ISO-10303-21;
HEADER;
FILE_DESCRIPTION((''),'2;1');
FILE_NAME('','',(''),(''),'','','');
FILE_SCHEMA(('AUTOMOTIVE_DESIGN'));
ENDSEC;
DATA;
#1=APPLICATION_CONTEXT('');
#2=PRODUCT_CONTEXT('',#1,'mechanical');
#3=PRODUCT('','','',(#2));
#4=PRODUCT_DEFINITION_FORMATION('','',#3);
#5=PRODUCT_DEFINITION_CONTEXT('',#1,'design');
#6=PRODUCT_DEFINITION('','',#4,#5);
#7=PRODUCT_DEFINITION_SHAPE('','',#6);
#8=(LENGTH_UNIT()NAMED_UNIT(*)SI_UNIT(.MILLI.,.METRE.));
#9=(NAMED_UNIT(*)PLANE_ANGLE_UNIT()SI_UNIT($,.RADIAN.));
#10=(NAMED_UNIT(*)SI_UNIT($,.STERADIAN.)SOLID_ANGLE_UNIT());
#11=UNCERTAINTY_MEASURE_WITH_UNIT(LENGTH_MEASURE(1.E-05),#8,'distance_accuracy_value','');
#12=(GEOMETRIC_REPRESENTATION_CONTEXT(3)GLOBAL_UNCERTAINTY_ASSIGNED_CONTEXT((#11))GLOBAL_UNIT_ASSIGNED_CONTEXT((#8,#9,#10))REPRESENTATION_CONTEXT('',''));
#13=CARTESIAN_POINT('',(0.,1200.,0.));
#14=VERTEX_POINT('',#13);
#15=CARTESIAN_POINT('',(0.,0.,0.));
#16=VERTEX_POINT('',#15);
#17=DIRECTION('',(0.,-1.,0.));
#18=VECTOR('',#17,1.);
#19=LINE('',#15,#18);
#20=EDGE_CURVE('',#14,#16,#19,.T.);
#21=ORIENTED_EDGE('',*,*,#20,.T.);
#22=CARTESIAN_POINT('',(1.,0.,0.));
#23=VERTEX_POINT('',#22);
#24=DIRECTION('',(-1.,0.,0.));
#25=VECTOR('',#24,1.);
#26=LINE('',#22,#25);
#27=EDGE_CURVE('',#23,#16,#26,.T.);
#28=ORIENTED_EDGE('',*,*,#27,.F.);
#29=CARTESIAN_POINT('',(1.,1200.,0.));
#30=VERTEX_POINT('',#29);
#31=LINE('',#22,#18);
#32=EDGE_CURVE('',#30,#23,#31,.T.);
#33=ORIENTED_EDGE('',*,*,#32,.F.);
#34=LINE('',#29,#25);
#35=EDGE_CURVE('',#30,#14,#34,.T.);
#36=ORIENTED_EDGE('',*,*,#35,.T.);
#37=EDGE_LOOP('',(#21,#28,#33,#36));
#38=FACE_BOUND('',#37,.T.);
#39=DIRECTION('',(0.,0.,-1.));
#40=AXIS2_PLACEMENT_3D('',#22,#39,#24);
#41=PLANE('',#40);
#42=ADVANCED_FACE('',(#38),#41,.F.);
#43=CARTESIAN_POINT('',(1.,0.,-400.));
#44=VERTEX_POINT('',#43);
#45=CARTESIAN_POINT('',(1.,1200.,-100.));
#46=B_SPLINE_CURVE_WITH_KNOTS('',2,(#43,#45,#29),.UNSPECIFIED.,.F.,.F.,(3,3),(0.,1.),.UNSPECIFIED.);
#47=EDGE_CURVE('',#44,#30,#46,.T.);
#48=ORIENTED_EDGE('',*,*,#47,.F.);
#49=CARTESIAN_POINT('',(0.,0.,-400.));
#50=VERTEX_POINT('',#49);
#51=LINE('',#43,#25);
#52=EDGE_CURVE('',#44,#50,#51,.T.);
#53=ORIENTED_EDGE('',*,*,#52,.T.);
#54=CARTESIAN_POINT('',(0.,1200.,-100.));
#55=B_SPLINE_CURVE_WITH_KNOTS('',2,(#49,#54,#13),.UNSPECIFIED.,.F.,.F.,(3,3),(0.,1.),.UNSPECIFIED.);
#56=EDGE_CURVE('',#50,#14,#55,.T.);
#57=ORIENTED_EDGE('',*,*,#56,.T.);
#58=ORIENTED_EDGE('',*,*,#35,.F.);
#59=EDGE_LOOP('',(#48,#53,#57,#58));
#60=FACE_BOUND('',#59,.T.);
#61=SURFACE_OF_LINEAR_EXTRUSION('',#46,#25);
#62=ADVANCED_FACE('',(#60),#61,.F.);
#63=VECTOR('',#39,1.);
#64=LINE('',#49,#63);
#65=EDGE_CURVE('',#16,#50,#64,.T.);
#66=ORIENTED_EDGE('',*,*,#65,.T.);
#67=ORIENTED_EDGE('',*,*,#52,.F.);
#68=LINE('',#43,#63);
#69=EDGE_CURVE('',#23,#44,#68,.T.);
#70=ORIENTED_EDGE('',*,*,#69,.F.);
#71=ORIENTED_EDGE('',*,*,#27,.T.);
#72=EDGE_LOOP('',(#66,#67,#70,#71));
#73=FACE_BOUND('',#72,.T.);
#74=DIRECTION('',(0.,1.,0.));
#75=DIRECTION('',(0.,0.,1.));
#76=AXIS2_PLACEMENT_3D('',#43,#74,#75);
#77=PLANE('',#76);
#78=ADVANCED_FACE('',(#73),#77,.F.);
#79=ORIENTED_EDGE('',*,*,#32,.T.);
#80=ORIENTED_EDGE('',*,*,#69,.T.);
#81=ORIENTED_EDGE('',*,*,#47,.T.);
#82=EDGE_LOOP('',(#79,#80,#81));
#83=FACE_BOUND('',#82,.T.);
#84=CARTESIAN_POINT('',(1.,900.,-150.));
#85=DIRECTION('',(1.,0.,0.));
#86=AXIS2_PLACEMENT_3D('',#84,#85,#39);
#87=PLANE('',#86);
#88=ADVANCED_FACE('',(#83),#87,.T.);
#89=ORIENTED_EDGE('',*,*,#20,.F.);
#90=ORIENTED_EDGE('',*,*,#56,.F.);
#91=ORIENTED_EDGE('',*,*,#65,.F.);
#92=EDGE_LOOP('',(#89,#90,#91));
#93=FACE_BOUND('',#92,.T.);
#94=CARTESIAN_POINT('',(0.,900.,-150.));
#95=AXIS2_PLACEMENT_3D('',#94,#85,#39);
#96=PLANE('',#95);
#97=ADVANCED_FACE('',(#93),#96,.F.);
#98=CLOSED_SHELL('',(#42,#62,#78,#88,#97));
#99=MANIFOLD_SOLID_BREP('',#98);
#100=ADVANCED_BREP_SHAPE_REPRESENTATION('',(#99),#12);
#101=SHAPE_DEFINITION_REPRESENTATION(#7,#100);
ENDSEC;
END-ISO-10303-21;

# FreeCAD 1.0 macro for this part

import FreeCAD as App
import Part
import Sketcher

V = App.Vector

doc = App.newDocument("Part")
body = doc.addObject("PartDesign::Body", "Body")

sketch1 = doc.addObject("Sketcher::SketchObject", "Sketch")
body.addObject(sketch1)
sketch1.AttachmentSupport = (doc.YZ_Plane, [""])
sketch1.MapMode = "FlatFace"
sketch1.addGeometry([
    Part.LineSegment(V(1200, 0, 0), V(0, 0, 0)),
    Part.LineSegment(V(0, 0, 0), V(0, -400, 0)),
    Part.BSplineCurve([V(1200, 0, 0), V(1200, -100, 0), V(0, -400, 0)], [3, 3], [0, 1], False, 2, [1, 1, 1], False),
], False)
sketch1.addConstraint([
    Sketcher.Constraint("Block", 2),
    Sketcher.Constraint("Coincident", 0, 2, 1, 1),
    Sketcher.Constraint("Coincident", 1, 2, 2, 2),
    Sketcher.Constraint("Coincident", 2, 1, 0, 1),
    Sketcher.Constraint("Horizontal", 0),
    Sketcher.Constraint("Vertical", 1),
])
pad1 = doc.addObject("PartDesign::Pad", "Pad")
body.addObject(pad1)
pad1.Profile = sketch1
pad1.Length = 1

doc.recompute()
